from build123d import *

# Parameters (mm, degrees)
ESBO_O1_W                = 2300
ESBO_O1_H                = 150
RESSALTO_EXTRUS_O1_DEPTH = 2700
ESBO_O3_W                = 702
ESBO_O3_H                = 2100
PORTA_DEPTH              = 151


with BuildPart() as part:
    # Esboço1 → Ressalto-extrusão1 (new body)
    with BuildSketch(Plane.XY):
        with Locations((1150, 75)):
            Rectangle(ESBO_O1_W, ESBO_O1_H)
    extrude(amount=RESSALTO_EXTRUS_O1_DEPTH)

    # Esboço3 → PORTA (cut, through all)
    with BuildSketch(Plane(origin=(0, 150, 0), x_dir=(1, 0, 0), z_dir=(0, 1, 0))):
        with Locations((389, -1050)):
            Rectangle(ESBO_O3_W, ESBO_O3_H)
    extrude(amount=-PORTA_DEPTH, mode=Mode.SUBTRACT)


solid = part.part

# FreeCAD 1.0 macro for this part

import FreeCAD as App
import Part
import Sketcher
Q = App.Units.Quantity

doc = App.newDocument("Part")
params = doc.addObject("Spreadsheet::Sheet", "Params")
for row, (alias, value) in enumerate([
    ("sketch1_width", "2300 mm"),
    ("sketch1_height", "150 mm"),
    ("pad1_length", "2700 mm"),
    ("sketch2_width", "702 mm"),
    ("sketch2_height", "2100 mm"),
], start=1):
    params.set(f"A{row}", alias)
    params.set(f"B{row}", "=" + value)
    params.setAlias(f"B{row}", alias)

body = doc.addObject("PartDesign::Body", "Body")

sketch1 = body.newObject("Sketcher::SketchObject", "Sketch")
sketch1.AttachmentSupport = (doc.getObject("XY_Plane"), [""])
sketch1.MapMode = "FlatFace"
sketch1.addGeometry(Part.LineSegment(App.Vector(0, 150, 0), App.Vector(0, 0, 0)), False)
sketch1.addGeometry(Part.LineSegment(App.Vector(0, 0, 0), App.Vector(2300, 0, 0)), False)
sketch1.addGeometry(Part.LineSegment(App.Vector(2300, 0, 0), App.Vector(2300, 150, 0)), False)
sketch1.addGeometry(Part.LineSegment(App.Vector(2300, 150, 0), App.Vector(0, 150, 0)), False)
sketch1.addConstraint(Sketcher.Constraint("Coincident", 0, 2, 1, 1))
sketch1.addConstraint(Sketcher.Constraint("Coincident", 1, 2, 2, 1))
sketch1.addConstraint(Sketcher.Constraint("Coincident", 2, 2, 3, 1))
sketch1.addConstraint(Sketcher.Constraint("Coincident", 3, 2, 0, 1))
sketch1.addConstraint(Sketcher.Constraint("Vertical", 0))
sketch1.addConstraint(Sketcher.Constraint("Horizontal", 1))
sketch1.addConstraint(Sketcher.Constraint("Vertical", 2))
sketch1.addConstraint(Sketcher.Constraint("Horizontal", 3))
sketch1.addConstraint(Sketcher.Constraint("Coincident", 0, 2, -1, 1))
sketch1.addConstraint(Sketcher.Constraint("DistanceX", 1, 1, 1, 2, Q("2300 mm")))
sketch1.addConstraint(Sketcher.Constraint("DistanceY", 0, 2, 0, 1, Q("150 mm")))
sketch1.setExpression("Constraints[9]", "Params.sketch1_width")
sketch1.setExpression("Constraints[10]", "Params.sketch1_height")
pad1 = body.newObject("PartDesign::Pad", "Pad")
pad1.Profile = sketch1
pad1.setExpression("Length", "Params.pad1_length")

sketch2 = body.newObject("Sketcher::SketchObject", "Sketch001")
sketch2.AttachmentSupport = (doc.getObject("XZ_Plane"), [""])
sketch2.MapMode = "FlatFace"
sketch2.AttachmentOffset = App.Placement(App.Vector(0, 0, -150), App.Rotation())
sketch2.addGeometry(Part.LineSegment(App.Vector(38, 0, 0), App.Vector(38, 2100, 0)), False)
sketch2.addGeometry(Part.LineSegment(App.Vector(38, 2100, 0), App.Vector(740, 2100, 0)), False)
sketch2.addGeometry(Part.LineSegment(App.Vector(740, 2100, 0), App.Vector(740, 0, 0)), False)
sketch2.addGeometry(Part.LineSegment(App.Vector(740, 0, 0), App.Vector(38, 0, 0)), False)
sketch2.addConstraint(Sketcher.Constraint("Coincident", 0, 2, 1, 1))
sketch2.addConstraint(Sketcher.Constraint("Coincident", 1, 2, 2, 1))
sketch2.addConstraint(Sketcher.Constraint("Coincident", 2, 2, 3, 1))
sketch2.addConstraint(Sketcher.Constraint("Coincident", 3, 2, 0, 1))
sketch2.addConstraint(Sketcher.Constraint("Vertical", 0))
sketch2.addConstraint(Sketcher.Constraint("Horizontal", 1))
sketch2.addConstraint(Sketcher.Constraint("Vertical", 2))
sketch2.addConstraint(Sketcher.Constraint("Horizontal", 3))
sketch2.addConstraint(Sketcher.Constraint("PointOnObject", 2, 2, -1))
sketch2.addConstraint(Sketcher.Constraint("DistanceX", 1, 1, 1, 2, Q("702 mm")))
sketch2.addConstraint(Sketcher.Constraint("DistanceY", 0, 1, 0, 2, Q("2100 mm")))
sketch2.addConstraint(Sketcher.Constraint("DistanceX", -1, 1, 0, 2, Q("38 mm")))
sketch2.setExpression("Constraints[9]", "Params.sketch2_width")
sketch2.setExpression("Constraints[10]", "Params.sketch2_height")
pocket1 = body.newObject("PartDesign::Pocket", "Pocket")
pocket1.Profile = sketch2
pocket1.Type = "ThroughAll"
pocket1.Reversed = True

doc.recompute()
